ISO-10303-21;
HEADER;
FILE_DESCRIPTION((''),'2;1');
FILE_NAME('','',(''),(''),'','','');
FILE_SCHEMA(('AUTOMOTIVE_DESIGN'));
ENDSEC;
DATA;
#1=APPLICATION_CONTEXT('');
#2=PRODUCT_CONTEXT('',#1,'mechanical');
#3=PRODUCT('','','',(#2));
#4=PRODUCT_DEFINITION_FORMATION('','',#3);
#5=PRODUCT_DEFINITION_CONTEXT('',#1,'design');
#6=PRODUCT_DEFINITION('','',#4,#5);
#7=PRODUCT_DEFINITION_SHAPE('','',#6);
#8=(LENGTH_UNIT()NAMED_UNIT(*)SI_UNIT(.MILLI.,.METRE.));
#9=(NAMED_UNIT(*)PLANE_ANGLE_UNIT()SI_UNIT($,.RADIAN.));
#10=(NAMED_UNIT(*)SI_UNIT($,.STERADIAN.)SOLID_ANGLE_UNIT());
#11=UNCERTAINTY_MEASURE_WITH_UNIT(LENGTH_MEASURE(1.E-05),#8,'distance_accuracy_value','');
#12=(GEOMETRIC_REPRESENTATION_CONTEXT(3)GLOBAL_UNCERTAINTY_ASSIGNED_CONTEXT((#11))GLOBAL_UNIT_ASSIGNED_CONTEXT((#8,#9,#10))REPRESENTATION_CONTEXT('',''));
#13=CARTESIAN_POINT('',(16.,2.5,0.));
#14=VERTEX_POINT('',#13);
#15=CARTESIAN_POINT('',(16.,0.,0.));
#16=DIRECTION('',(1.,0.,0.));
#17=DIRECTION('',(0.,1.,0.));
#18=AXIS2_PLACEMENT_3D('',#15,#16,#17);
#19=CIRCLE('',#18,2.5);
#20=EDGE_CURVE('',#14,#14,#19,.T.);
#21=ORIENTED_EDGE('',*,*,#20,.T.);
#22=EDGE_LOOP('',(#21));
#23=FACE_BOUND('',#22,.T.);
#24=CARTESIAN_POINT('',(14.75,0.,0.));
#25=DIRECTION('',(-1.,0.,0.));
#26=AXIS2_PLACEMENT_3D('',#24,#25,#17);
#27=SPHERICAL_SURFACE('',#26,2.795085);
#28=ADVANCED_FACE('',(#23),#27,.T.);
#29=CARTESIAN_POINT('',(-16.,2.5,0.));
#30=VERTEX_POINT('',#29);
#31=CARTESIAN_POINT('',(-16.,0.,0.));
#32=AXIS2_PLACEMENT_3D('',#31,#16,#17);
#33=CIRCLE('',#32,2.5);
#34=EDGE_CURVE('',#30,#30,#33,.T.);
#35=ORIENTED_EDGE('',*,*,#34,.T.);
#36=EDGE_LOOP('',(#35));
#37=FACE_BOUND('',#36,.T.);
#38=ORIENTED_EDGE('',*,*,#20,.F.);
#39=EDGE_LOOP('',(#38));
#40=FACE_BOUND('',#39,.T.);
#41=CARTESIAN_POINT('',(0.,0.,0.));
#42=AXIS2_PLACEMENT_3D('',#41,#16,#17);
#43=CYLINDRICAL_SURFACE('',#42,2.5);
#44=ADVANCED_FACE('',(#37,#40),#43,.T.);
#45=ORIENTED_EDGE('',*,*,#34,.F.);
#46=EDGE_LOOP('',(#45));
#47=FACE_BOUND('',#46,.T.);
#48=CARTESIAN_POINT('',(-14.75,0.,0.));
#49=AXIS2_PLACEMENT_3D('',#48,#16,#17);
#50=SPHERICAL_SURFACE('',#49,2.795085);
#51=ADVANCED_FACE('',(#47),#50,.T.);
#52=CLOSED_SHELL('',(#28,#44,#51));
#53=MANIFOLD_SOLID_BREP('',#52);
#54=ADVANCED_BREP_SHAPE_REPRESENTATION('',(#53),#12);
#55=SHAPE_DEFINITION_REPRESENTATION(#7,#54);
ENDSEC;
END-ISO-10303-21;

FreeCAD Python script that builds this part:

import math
import FreeCAD as App
import Part
import Sketcher

V = App.Vector
Q = App.Units.Quantity

doc = App.newDocument("Part")
body = doc.addObject("PartDesign::Body", "Body")

# Sketch on XY plane
sketch1 = body.newObject("Sketcher::SketchObject", "Sketch")
sketch1.AttachmentSupport = (doc.getObject("XY_Plane"), [""])
sketch1.MapMode = "FlatFace"
sketch1.addGeometry([
    Part.LineSegment(V(0, 2.5, 0), V(-16, 2.5, 0)),
    Part.ArcOfCircle(Part.Circle(V(-14.75, 0, 0), V(0, 0, 1), 2.795085), math.radians(116.565051), math.radians(180)),
    Part.LineSegment(V(-17.545085, 0, 0), V(0, 0, 0)),
    Part.LineSegment(V(0, 0, 0), V(0, 2.5, 0)),
], False)
sketch1.addConstraint([
    Sketcher.Constraint("Coincident", 0, 2, 1, 1),
    Sketcher.Constraint("Coincident", 1, 2, 2, 1),
    Sketcher.Constraint("Coincident", 2, 2, 3, 1),
    Sketcher.Constraint("Coincident", 3, 2, 0, 1),
    Sketcher.Constraint("Horizontal", 0),
    Sketcher.Constraint("Horizontal", 2),
    Sketcher.Constraint("Vertical", 3),
    Sketcher.Constraint("Coincident", 2, 2, -1, 1),
    Sketcher.Constraint("PointOnObject", 1, 3, -1),
    Sketcher.Constraint("DistanceX", 0, 2, 0, 1, Q("16 mm")),
    Sketcher.Constraint("DistanceY", 3, 1, 3, 2, Q("2.5 mm")),
    Sketcher.Constraint("DistanceX", 1, 3, -1, 1, Q("14.75 mm")),
])
revolution = body.newObject("PartDesign::Revolution", "Revolution")
revolution.Profile = sketch1
revolution.ReferenceAxis = (sketch1, ["H_Axis"])
revolution.Angle = 360
doc.recompute()

mirrored = body.newObject("PartDesign::Mirrored", "Mirrored")
mirrored.Originals = [revolution]
mirrored.MirrorPlane = (doc.getObject("YZ_Plane"), [""])
body.Tip = mirrored

doc.recompute()
